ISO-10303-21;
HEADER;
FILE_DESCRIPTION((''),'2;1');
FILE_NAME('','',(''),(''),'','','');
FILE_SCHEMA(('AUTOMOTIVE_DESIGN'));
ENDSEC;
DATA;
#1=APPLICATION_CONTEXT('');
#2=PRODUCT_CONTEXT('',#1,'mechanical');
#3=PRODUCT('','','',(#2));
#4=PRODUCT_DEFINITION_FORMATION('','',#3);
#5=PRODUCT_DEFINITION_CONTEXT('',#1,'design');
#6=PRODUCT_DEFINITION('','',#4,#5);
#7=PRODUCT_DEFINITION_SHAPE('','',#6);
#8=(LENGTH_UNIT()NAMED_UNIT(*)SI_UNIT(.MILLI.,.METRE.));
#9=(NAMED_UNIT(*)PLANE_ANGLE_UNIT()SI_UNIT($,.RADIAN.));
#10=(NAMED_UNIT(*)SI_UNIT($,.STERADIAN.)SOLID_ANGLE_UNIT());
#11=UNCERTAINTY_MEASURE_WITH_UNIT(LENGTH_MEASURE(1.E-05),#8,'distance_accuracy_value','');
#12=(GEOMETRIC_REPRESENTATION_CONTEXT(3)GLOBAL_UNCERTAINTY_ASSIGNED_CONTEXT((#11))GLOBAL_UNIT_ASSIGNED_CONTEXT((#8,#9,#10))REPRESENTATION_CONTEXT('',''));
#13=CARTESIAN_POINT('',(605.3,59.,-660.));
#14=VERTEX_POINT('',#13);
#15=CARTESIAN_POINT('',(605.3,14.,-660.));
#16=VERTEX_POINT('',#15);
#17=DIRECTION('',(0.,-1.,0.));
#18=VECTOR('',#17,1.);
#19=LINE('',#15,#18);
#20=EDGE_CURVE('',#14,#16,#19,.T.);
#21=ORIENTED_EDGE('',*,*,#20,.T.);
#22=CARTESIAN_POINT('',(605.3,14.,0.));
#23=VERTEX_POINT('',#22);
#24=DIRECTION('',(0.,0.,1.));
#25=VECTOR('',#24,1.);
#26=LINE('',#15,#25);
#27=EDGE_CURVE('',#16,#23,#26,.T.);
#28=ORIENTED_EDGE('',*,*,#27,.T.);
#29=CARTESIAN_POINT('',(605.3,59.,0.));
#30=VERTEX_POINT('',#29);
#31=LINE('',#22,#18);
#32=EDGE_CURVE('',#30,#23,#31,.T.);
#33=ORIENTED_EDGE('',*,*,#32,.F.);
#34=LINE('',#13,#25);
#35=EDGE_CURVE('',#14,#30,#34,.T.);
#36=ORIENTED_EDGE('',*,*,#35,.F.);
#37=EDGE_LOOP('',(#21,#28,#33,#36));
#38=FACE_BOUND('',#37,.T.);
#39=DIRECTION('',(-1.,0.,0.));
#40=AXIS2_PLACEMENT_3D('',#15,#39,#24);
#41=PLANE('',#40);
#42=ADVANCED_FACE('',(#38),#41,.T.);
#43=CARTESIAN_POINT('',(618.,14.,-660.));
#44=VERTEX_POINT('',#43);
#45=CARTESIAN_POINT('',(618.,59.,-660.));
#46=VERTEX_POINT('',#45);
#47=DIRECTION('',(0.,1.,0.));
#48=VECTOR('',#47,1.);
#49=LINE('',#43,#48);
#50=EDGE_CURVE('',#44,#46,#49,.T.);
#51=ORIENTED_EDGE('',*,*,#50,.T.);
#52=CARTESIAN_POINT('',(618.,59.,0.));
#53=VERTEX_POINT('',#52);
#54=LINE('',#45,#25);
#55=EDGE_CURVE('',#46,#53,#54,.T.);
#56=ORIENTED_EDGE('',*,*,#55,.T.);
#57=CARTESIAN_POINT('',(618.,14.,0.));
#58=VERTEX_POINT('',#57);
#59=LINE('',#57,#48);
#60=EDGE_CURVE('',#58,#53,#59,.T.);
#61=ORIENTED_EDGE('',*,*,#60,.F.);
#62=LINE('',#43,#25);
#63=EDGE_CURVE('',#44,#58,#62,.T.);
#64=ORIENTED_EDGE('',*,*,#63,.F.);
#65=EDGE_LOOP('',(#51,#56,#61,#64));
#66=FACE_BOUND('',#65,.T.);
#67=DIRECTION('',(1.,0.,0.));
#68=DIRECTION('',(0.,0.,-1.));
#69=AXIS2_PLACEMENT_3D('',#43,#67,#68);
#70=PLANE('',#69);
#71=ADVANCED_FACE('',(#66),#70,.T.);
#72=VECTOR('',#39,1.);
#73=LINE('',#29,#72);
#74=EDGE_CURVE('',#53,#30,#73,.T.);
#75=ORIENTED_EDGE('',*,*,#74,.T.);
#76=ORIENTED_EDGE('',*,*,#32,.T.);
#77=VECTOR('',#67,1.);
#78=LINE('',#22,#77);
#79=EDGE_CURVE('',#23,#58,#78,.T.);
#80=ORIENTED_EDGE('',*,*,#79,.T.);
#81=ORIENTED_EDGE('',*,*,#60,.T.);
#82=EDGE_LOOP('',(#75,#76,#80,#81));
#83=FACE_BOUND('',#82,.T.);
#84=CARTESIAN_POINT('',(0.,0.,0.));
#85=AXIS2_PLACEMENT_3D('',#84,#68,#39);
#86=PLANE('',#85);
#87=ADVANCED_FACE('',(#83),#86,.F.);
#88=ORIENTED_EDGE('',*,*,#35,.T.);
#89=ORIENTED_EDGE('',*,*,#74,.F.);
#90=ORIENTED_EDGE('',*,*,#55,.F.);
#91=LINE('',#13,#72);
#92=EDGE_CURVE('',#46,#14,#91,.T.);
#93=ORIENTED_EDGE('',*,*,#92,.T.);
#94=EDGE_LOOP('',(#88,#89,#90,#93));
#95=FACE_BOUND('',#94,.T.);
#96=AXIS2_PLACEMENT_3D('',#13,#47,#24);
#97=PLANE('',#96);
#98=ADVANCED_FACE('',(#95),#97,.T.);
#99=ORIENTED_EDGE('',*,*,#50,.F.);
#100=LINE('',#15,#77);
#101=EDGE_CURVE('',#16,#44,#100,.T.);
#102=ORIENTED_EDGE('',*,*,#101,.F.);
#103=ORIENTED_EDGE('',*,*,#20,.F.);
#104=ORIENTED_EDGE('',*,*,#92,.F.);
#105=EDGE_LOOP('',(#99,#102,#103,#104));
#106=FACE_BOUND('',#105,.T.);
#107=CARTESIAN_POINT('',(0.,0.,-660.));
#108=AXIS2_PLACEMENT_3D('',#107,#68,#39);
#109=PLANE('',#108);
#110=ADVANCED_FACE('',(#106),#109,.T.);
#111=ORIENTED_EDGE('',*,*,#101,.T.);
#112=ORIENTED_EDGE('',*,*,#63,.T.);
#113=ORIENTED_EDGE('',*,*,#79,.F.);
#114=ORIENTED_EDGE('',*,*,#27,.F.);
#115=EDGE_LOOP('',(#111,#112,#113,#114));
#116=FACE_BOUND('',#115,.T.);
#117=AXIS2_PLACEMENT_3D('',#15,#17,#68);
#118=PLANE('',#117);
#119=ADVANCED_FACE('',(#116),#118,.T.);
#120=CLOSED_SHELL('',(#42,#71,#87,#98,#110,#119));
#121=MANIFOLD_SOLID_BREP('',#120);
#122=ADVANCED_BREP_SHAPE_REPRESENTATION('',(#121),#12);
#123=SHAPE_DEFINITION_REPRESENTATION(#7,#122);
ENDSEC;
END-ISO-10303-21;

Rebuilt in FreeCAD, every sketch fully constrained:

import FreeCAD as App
import Part
import Sketcher


def add_polygon(sketch, points):
    """Adds a closed chain of lines whose ends are joined by coincident constraints."""
    first, n = sketch.GeometryCount, len(points)
    for a, b in zip(points, points[1:] + points[:1]):
        sketch.addGeometry(Part.LineSegment(App.Vector(*a, 0), App.Vector(*b, 0)), False)
    for i in range(n):
        sketch.addConstraint(Sketcher.Constraint("Coincident", first + i, 2, first + (i + 1) % n, 1))

doc = App.newDocument("Part")
body = doc.addObject("PartDesign::Body", "Body")

# Sketch on XY plane
sketch1 = body.newObject("Sketcher::SketchObject", "Sketch")
sketch1.AttachmentSupport = (doc.getObject("XY_Plane"), [""])
sketch1.MapMode = "FlatFace"
add_polygon(sketch1, [(605, 59), (605, 14), (618, 14), (618, 59)])  # lines 0-3
sketch1.addConstraint(Sketcher.Constraint("Vertical", 0))
sketch1.addConstraint(Sketcher.Constraint("Horizontal", 1))
sketch1.addConstraint(Sketcher.Constraint("Vertical", 2))
sketch1.addConstraint(Sketcher.Constraint("Horizontal", 3))
sketch1.addConstraint(Sketcher.Constraint("DistanceY", 0, 2, 0, 1, 45.0))
sketch1.addConstraint(Sketcher.Constraint("DistanceX", 1, 1, 1, 2, 12.7))
sketch1.addConstraint(Sketcher.Constraint("DistanceY", -1, 1, 0, 2, 14.0))
sketch1.addConstraint(Sketcher.Constraint("DistanceX", -1, 1, 1, 2, 618.0))
pad1 = body.newObject("PartDesign::Pad", "Pad")
pad1.Profile = sketch1
pad1.Length = 660
pad1.Reversed = True

doc.recompute()
